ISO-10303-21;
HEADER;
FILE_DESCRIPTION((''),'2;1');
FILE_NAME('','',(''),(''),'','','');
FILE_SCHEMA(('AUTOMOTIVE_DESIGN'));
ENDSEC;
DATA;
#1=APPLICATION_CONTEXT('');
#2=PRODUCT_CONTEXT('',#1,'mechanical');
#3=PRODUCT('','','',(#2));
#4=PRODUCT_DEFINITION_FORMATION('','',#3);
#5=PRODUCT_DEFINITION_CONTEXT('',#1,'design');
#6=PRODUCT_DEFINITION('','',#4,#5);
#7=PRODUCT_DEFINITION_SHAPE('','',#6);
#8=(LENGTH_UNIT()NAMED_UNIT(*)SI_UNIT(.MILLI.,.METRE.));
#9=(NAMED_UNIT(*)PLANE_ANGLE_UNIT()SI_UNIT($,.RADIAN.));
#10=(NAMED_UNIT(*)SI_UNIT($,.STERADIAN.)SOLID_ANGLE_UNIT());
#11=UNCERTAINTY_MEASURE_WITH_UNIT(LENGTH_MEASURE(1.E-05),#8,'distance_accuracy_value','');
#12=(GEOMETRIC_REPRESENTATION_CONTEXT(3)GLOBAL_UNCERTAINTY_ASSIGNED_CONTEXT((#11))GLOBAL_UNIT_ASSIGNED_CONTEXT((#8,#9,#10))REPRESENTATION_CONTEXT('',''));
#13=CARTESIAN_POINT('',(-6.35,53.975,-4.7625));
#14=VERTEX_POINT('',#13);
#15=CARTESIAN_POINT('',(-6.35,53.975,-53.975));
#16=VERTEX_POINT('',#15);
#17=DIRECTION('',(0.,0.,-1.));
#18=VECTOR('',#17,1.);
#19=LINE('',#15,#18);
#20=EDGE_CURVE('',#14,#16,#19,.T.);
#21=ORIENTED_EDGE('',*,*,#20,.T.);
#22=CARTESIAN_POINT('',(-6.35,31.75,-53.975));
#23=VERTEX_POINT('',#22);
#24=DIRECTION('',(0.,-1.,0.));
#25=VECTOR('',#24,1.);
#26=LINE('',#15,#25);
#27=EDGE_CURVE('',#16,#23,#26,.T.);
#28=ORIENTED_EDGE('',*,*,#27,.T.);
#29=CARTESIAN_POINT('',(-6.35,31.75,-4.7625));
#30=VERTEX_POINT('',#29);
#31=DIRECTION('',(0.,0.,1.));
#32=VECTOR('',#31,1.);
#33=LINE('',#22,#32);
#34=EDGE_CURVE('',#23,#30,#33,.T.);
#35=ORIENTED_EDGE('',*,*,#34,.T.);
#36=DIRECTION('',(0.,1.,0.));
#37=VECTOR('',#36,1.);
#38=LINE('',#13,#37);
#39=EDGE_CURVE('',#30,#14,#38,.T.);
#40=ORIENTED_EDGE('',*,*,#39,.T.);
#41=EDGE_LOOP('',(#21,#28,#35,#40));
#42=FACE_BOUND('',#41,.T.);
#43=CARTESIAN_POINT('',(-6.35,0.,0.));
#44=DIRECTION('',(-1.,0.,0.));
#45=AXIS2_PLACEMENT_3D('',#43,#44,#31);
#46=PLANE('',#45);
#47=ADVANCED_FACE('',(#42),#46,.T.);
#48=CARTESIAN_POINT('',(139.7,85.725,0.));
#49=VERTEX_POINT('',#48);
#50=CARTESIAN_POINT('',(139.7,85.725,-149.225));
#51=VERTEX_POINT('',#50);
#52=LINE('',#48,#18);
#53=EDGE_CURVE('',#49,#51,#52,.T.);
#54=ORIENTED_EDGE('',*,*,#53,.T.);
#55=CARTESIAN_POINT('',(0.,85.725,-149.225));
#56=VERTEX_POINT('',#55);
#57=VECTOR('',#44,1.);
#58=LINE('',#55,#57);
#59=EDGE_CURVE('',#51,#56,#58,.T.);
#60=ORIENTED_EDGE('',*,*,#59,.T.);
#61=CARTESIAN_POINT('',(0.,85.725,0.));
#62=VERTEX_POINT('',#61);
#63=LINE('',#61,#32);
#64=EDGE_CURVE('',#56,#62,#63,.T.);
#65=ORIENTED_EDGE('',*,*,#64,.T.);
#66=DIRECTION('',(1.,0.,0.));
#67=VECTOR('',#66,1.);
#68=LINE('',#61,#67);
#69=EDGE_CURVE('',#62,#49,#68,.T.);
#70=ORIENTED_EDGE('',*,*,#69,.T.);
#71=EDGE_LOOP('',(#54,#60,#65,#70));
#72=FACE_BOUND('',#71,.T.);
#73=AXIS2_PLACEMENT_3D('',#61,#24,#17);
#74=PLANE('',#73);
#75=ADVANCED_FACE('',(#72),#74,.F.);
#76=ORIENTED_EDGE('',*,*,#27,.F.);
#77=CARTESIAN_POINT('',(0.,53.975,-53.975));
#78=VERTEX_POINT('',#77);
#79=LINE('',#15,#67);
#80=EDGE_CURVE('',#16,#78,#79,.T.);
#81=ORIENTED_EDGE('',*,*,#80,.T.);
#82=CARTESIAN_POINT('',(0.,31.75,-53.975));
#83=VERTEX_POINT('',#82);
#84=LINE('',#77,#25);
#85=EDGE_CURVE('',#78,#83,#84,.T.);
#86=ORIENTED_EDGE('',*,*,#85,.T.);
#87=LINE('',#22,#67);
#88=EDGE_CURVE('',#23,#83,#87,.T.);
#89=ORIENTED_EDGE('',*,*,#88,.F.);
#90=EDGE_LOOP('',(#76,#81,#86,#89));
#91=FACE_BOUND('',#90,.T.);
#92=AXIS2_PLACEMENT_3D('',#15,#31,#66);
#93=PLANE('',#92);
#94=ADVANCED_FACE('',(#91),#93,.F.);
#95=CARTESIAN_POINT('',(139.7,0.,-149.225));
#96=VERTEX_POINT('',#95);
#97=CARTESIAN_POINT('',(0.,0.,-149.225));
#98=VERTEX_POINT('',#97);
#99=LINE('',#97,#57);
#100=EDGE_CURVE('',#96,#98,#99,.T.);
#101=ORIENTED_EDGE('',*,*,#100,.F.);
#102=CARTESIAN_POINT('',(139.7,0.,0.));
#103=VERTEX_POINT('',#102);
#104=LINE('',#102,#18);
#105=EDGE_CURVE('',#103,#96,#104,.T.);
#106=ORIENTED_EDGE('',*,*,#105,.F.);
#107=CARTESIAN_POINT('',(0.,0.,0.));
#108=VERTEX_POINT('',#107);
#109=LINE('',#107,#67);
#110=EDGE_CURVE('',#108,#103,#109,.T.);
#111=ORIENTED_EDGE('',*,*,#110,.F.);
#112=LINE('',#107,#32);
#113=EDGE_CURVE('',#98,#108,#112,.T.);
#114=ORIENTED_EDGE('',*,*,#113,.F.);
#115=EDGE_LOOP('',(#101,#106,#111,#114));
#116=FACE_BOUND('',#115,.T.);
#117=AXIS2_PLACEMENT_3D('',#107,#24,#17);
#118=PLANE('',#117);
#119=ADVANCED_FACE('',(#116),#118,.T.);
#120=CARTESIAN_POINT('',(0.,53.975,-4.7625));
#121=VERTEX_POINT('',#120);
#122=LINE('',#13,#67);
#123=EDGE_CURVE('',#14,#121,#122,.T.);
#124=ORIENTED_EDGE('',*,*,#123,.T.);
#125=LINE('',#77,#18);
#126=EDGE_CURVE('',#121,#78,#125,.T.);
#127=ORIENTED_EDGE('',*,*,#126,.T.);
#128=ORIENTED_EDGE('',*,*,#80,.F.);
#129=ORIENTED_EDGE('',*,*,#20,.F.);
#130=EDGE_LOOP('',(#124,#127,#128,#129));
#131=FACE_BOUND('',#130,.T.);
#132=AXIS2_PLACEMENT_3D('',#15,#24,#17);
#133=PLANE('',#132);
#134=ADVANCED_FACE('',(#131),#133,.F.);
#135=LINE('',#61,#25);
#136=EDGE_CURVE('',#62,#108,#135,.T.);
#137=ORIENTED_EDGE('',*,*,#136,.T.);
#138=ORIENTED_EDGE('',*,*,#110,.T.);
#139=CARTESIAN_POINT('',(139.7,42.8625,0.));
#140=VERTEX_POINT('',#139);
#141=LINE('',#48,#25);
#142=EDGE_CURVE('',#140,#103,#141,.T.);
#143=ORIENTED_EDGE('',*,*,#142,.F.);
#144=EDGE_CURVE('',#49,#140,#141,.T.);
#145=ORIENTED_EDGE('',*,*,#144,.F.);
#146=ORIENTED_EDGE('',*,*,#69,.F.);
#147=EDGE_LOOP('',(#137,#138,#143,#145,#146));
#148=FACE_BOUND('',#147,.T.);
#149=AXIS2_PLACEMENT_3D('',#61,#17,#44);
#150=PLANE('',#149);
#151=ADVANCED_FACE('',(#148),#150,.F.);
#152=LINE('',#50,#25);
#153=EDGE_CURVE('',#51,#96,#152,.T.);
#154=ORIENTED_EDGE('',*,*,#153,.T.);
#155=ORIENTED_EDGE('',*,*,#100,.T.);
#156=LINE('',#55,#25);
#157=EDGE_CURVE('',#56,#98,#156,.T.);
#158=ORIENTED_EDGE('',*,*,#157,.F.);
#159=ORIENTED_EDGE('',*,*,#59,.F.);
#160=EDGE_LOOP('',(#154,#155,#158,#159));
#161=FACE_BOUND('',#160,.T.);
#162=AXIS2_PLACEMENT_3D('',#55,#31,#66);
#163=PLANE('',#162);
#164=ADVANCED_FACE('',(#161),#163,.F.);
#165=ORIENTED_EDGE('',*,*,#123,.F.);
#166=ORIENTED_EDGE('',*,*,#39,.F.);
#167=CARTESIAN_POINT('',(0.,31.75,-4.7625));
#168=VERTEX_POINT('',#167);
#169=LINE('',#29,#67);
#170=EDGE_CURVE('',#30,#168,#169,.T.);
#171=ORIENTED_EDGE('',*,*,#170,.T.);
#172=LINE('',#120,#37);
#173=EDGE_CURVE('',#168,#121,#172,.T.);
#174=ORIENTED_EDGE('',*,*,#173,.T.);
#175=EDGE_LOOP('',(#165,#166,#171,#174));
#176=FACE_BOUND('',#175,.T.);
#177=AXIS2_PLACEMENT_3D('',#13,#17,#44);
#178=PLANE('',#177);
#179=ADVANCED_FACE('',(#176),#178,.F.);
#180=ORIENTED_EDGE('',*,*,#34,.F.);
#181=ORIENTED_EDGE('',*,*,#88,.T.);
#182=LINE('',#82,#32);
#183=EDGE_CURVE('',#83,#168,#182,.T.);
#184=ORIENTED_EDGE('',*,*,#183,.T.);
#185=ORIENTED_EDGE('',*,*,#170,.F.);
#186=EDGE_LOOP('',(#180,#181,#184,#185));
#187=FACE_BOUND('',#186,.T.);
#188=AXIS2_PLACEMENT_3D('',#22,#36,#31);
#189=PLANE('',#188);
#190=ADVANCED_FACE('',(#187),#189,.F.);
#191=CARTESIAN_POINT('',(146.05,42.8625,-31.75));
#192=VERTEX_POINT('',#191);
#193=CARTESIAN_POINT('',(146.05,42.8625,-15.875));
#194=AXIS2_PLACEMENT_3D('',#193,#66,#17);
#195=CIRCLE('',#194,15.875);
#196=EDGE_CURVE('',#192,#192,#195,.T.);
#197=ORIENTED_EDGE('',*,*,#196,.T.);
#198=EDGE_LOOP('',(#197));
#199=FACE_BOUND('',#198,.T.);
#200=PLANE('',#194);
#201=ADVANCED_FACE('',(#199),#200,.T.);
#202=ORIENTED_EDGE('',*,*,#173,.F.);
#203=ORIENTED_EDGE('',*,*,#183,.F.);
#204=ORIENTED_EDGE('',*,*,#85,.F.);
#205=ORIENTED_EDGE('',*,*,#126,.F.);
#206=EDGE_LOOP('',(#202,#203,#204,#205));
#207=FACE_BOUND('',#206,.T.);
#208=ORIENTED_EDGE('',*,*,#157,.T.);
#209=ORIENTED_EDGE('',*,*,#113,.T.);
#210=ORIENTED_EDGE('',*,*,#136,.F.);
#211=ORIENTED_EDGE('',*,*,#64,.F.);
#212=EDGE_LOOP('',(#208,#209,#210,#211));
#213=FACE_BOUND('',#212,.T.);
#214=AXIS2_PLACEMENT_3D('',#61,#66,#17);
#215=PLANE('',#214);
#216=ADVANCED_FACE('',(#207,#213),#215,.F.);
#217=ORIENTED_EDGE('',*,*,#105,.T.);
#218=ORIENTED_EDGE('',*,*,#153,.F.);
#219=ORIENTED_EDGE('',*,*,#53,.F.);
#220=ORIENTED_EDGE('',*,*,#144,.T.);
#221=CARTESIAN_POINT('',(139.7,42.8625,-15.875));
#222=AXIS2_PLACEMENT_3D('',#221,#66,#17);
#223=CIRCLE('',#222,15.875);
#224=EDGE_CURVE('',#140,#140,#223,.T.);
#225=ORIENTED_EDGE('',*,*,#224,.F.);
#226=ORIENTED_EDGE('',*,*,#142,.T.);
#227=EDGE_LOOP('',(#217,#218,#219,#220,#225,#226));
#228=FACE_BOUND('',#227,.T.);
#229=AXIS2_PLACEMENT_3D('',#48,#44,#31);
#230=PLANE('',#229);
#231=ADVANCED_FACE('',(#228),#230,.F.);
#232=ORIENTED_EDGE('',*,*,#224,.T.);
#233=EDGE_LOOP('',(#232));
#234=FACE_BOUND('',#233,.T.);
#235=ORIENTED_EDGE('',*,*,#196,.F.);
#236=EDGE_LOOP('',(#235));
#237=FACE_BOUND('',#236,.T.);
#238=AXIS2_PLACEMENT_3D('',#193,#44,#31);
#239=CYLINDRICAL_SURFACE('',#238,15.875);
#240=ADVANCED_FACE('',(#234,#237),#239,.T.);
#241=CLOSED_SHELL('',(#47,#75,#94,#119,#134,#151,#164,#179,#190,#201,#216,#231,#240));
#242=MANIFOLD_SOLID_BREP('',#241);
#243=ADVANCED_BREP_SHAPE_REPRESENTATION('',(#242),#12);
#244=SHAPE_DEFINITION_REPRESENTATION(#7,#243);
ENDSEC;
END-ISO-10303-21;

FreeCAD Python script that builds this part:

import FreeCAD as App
import Part
import Sketcher
Q = App.Units.Quantity


def add_polygon(sketch, points):
    """Adds a closed chain of lines whose ends are joined by coincident constraints."""
    first, n = sketch.GeometryCount, len(points)
    for a, b in zip(points, points[1:] + points[:1]):
        sketch.addGeometry(Part.LineSegment(App.Vector(*a, 0), App.Vector(*b, 0)), False)
    for i in range(n):
        sketch.addConstraint(Sketcher.Constraint("Coincident", first + i, 2, first + (i + 1) % n, 1))

doc = App.newDocument("Part")
body = doc.addObject("PartDesign::Body", "Body")

# Sketch on XZ plane
sketch1 = body.newObject("Sketcher::SketchObject", "Sketch")
sketch1.AttachmentSupport = (doc.getObject("XZ_Plane"), [""])
sketch1.MapMode = "FlatFace"
add_polygon(sketch1, [(0, -149), (0, 0), (140, 0), (140, -149)])  # lines 0-3
sketch1.addConstraint([
    Sketcher.Constraint("Vertical", 0),
    Sketcher.Constraint("Horizontal", 1),
    Sketcher.Constraint("Vertical", 2),
    Sketcher.Constraint("Horizontal", 3),
    Sketcher.Constraint("Coincident", 0, 2, -1, 1),
    Sketcher.Constraint("DistanceX", 1, 1, 1, 2, Q("5.5 in")),
    Sketcher.Constraint("DistanceY", 0, 1, 0, 2, Q("5.875 in")),
])
pad1 = body.newObject("PartDesign::Pad", "Pad")
pad1.Profile = sketch1
pad1.Length = Q("3.375 in")
pad1.Reversed = True

# Sketch on YZ plane
sketch2 = body.newObject("Sketcher::SketchObject", "Sketch001")
sketch2.AttachmentSupport = (doc.getObject("YZ_Plane"), [""])
sketch2.MapMode = "FlatFace"
add_polygon(sketch2, [(54, -54), (32, -54), (32, -5), (54, -5)])  # lines 0-3
sketch2.addConstraint([
    Sketcher.Constraint("Horizontal", 0),
    Sketcher.Constraint("Vertical", 1),
    Sketcher.Constraint("Horizontal", 2),
    Sketcher.Constraint("Vertical", 3),
    Sketcher.Constraint("DistanceX", 0, 2, 0, 1, Q("0.875 in")),
    Sketcher.Constraint("DistanceY", 1, 1, 1, 2, Q("1.9375 in")),
    Sketcher.Constraint("DistanceX", -1, 1, 0, 2, Q("1.25 in")),
    Sketcher.Constraint("DistanceY", 0, 2, -1, 1, Q("2.125 in")),
])
pad2 = body.newObject("PartDesign::Pad", "Pad001")
pad2.Profile = sketch2
pad2.Length = Q("0.25 in")
pad2.Reversed = True

# Sketch on YZ plane
sketch3 = body.newObject("Sketcher::SketchObject", "Sketch002")
sketch3.AttachmentSupport = (doc.getObject("YZ_Plane"), [""])
sketch3.MapMode = "FlatFace"
sketch3.AttachmentOffset = App.Placement(App.Vector(0, 0, 5.5 * 25.4), App.Rotation())
sketch3.addGeometry(Part.Circle(App.Vector(43, -16, 0), App.Vector(0, 0, 1), 16), False)
sketch3.addConstraint([
    Sketcher.Constraint("Diameter", 0, Q("1.25 in")),
    Sketcher.Constraint("DistanceX", -1, 1, 0, 3, Q("1.6875 in")),
    Sketcher.Constraint("DistanceY", 0, 3, -1, 1, Q("0.625 in")),
])
pad3 = body.newObject("PartDesign::Pad", "Pad002")
pad3.Profile = sketch3
pad3.Length = Q("0.25 in")

doc.recompute()
